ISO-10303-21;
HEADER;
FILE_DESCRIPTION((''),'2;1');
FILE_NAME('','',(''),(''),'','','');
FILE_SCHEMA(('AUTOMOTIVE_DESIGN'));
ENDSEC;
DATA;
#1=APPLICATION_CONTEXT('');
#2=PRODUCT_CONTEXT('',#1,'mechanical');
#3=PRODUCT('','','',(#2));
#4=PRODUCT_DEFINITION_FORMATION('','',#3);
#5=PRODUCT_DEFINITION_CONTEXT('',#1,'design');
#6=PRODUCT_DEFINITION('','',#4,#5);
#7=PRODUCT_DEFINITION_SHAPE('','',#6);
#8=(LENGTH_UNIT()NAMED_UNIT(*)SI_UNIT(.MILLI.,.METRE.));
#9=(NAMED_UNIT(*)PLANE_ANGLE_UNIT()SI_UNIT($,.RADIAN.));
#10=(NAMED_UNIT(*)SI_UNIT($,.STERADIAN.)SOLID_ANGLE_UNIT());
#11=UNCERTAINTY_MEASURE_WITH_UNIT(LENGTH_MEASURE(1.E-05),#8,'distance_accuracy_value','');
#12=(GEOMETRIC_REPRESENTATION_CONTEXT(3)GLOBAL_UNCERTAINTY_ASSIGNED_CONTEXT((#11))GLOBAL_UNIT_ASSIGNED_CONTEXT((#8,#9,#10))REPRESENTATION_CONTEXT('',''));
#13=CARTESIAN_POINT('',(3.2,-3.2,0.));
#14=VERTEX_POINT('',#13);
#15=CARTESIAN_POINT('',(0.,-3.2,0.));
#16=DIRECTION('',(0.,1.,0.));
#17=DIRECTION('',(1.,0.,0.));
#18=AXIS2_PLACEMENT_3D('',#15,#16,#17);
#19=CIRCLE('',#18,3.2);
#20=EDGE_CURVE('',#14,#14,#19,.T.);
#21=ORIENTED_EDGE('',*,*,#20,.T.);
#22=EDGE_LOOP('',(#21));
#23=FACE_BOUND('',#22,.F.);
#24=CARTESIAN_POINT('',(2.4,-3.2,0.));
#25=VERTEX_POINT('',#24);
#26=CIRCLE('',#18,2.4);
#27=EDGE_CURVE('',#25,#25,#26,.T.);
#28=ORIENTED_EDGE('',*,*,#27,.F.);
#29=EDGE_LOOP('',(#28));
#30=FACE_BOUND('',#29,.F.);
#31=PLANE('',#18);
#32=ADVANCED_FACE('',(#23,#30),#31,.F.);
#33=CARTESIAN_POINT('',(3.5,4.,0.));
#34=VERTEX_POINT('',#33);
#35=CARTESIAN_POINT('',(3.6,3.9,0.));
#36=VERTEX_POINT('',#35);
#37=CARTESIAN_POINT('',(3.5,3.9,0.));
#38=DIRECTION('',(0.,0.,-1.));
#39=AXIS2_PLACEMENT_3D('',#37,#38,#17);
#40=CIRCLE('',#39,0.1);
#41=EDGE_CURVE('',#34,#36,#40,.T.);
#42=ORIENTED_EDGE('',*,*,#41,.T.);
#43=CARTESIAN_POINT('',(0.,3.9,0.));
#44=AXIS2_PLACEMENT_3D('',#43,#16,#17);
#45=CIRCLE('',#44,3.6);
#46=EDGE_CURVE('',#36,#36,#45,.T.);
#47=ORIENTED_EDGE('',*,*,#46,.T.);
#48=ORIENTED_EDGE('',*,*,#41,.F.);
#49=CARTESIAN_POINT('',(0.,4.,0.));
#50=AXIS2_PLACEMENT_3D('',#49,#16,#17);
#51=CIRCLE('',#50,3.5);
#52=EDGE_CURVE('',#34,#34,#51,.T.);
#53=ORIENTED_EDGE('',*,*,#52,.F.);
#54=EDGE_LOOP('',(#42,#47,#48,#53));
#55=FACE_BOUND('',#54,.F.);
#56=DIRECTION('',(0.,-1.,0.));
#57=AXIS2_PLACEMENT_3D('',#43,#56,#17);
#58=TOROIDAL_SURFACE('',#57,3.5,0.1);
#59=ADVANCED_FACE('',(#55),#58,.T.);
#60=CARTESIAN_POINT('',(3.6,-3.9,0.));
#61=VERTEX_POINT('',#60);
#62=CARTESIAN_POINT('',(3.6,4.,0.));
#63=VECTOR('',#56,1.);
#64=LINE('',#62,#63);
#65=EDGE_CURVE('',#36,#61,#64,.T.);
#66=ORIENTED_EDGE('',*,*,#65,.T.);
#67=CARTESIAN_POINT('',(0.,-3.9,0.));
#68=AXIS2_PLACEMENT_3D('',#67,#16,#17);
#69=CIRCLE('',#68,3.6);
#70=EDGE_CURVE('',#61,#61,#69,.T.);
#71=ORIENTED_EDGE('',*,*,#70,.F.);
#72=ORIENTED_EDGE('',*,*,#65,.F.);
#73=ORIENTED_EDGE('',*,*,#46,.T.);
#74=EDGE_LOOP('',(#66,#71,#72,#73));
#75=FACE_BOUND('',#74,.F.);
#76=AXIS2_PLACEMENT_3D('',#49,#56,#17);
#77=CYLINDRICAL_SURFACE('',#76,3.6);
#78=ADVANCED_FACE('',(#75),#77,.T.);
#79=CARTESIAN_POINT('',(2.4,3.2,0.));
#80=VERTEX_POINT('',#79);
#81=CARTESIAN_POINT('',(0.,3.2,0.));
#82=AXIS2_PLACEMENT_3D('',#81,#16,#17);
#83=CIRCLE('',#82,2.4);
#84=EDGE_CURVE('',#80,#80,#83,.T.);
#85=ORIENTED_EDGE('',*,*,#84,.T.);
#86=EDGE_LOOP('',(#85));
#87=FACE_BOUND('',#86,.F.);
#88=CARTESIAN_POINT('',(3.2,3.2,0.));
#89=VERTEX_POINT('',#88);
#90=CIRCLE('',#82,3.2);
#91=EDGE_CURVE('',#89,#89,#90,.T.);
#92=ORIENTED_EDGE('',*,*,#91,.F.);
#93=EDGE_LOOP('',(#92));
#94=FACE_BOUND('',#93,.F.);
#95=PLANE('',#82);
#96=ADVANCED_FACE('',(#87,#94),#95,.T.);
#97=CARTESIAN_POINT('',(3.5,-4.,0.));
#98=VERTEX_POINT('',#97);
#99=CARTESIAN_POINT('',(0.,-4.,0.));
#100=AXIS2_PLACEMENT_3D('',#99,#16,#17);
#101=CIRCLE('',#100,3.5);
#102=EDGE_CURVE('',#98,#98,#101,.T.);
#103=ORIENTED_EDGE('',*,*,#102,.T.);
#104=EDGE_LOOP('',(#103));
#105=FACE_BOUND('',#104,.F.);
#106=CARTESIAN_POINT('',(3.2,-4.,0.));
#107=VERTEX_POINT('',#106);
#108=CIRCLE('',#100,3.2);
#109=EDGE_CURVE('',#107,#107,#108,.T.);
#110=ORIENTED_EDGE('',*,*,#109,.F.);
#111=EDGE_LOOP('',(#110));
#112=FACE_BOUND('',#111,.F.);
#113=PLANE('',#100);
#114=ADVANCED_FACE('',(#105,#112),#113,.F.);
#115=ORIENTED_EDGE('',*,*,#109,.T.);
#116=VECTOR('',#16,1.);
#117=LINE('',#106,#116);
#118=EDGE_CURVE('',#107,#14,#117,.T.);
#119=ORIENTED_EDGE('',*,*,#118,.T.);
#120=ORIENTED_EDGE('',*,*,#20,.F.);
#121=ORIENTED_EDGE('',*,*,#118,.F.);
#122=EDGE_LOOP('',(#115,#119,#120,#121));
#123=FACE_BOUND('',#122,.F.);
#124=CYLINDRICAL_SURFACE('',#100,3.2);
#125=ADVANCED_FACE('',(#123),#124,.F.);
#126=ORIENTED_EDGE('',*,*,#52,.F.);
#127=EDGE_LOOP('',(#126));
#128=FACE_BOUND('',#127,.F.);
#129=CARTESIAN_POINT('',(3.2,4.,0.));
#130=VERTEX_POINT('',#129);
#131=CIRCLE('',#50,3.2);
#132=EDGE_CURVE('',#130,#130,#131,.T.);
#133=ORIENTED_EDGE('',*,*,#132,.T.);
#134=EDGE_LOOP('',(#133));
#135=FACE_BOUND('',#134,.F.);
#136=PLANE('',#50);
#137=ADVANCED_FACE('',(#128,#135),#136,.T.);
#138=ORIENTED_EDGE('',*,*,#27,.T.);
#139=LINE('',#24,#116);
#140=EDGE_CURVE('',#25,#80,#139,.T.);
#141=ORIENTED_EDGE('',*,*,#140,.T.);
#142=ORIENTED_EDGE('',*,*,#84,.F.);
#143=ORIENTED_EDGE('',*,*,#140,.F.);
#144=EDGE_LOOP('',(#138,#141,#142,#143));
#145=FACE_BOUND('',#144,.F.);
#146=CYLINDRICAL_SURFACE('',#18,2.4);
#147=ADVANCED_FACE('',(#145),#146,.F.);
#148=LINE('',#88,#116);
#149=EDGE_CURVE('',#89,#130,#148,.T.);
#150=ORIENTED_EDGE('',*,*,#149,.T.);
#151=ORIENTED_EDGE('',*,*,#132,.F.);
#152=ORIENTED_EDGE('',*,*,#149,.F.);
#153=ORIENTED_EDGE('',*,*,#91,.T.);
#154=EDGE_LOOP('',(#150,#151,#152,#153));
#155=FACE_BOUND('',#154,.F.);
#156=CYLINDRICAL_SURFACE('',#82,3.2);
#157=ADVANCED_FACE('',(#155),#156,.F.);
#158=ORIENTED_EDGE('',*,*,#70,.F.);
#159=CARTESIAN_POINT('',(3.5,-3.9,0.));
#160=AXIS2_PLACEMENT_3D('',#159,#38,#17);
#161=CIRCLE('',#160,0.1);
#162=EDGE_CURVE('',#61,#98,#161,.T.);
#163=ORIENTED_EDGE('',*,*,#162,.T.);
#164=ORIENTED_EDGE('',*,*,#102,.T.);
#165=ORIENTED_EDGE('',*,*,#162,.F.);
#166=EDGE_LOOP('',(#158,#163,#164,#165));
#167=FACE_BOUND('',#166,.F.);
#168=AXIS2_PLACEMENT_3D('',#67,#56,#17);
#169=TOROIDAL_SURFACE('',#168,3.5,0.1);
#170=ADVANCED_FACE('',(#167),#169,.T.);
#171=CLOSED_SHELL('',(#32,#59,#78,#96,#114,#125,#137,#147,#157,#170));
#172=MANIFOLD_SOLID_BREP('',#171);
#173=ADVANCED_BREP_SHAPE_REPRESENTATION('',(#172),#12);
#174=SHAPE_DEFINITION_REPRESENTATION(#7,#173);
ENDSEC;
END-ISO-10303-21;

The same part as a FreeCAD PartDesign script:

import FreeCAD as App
import Part
import Sketcher


def edges_at(feature, points):
    """Names of the edges that pass closest to the given points."""
    edges = feature.Shape.Edges
    near = lambda p: min(range(len(edges)), key=lambda i: edges[i].distToShape(Part.Vertex(*p))[0])
    return sorted({f"Edge{near(p) + 1}" for p in points})


def add_polygon(sketch, points):
    """Adds a closed chain of lines whose ends are joined by coincident constraints."""
    first, n = sketch.GeometryCount, len(points)
    for a, b in zip(points, points[1:] + points[:1]):
        sketch.addGeometry(Part.LineSegment(App.Vector(*a, 0), App.Vector(*b, 0)), False)
    for i in range(n):
        sketch.addConstraint(Sketcher.Constraint("Coincident", first + i, 2, first + (i + 1) % n, 1))

doc = App.newDocument("Part")
body = doc.addObject("PartDesign::Body", "Body")

sketch1 = body.newObject("Sketcher::SketchObject", "Sketch")
sketch1.AttachmentSupport = (doc.getObject("XY_Plane"), [""])
sketch1.MapMode = "FlatFace"
add_polygon(sketch1, [(2.4, 3.2), (2.4, -3.2), (3.2, -3.2), (3.2, -4), (3.6, -4), (3.6, 4), (3.2, 4), (3.2, 3.2)])
sketch1.addConstraint([
    Sketcher.Constraint("Vertical", 0),
    Sketcher.Constraint("Horizontal", 1),
    Sketcher.Constraint("Vertical", 2),
    Sketcher.Constraint("Horizontal", 3),
    Sketcher.Constraint("Vertical", 4),
    Sketcher.Constraint("Horizontal", 5),
    Sketcher.Constraint("Vertical", 6),
    Sketcher.Constraint("Horizontal", 7),
    Sketcher.Constraint("Symmetric", 2, 2, 5, 2, -1),
    Sketcher.Constraint("Equal", 7, 2),
    Sketcher.Constraint("Equal", 2, 6),
    Sketcher.Constraint("DistanceY", 4, 1, 4, 2, 8.0),
    Sketcher.Constraint("DistanceX", 1, 1, 1, 2, 0.8),
    Sketcher.Constraint("DistanceX", 3, 1, 3, 2, 0.4),
    Sketcher.Constraint("DistanceX", -1, 1, 0, 2, 2.4),
])
revolution = body.newObject("PartDesign::Revolution", "Revolution")
revolution.Profile = sketch1
revolution.ReferenceAxis = (sketch1, ["V_Axis"])
revolution.Angle = 360
doc.recompute()

fillet = body.newObject("PartDesign::Fillet", "Fillet")
fillet.Base = (revolution, edges_at(revolution, [(-3.6, 4, 0), (-3.6, -4, 0)]))
fillet.Radius = 0.1

doc.recompute()
